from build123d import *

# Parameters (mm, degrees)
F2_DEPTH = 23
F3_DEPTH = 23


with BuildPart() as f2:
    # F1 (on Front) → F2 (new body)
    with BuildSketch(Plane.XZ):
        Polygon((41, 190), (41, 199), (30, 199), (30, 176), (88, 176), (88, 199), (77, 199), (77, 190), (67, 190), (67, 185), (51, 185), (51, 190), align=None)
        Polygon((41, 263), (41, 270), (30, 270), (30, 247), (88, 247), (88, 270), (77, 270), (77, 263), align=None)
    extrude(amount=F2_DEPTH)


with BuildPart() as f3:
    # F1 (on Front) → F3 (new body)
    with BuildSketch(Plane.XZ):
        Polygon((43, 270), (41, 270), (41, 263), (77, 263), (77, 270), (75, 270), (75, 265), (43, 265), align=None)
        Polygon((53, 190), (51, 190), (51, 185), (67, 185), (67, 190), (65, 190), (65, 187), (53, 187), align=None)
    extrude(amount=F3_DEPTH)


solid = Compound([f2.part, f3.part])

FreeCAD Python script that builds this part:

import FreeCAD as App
import Part
import Sketcher


def add_polygon(sketch, points):
    """Adds a closed chain of lines whose ends are joined by coincident constraints."""
    first, n = sketch.GeometryCount, len(points)
    for a, b in zip(points, points[1:] + points[:1]):
        sketch.addGeometry(Part.LineSegment(App.Vector(*a, 0), App.Vector(*b, 0)), False)
    for i in range(n):
        sketch.addConstraint(Sketcher.Constraint("Coincident", first + i, 2, first + (i + 1) % n, 1))

doc = App.newDocument("Part")
body = doc.addObject("PartDesign::Body", "Body")
body.AllowCompound = True

sketch1 = doc.addObject("Sketcher::SketchObject", "Sketch")
body.addObject(sketch1)
sketch1.AttachmentSupport = (doc.XZ_Plane, [""])
sketch1.MapMode = "FlatFace"
add_polygon(sketch1, [(41, 190), (41, 199), (30, 199), (30, 176), (88, 176), (88, 199), (77, 199), (77, 190), (67, 190), (67, 185), (51, 185), (51, 190)])
add_polygon(sketch1, [(41, 263), (41, 270), (30, 270), (30, 247), (88, 247), (88, 270), (77, 270), (77, 263)])
sketch1.addConstraint(Sketcher.Constraint("Vertical", 0))
sketch1.addConstraint(Sketcher.Constraint("Horizontal", 1))
sketch1.addConstraint(Sketcher.Constraint("Vertical", 2))
sketch1.addConstraint(Sketcher.Constraint("Horizontal", 3))
sketch1.addConstraint(Sketcher.Constraint("Vertical", 4))
sketch1.addConstraint(Sketcher.Constraint("Horizontal", 5))
sketch1.addConstraint(Sketcher.Constraint("Vertical", 6))
sketch1.addConstraint(Sketcher.Constraint("Horizontal", 7))
sketch1.addConstraint(Sketcher.Constraint("Vertical", 8))
sketch1.addConstraint(Sketcher.Constraint("Horizontal", 9))
sketch1.addConstraint(Sketcher.Constraint("Vertical", 10))
sketch1.addConstraint(Sketcher.Constraint("Horizontal", 11))
sketch1.addConstraint(Sketcher.Constraint("Vertical", 12))
sketch1.addConstraint(Sketcher.Constraint("Horizontal", 13))
sketch1.addConstraint(Sketcher.Constraint("Vertical", 14))
sketch1.addConstraint(Sketcher.Constraint("Horizontal", 15))
sketch1.addConstraint(Sketcher.Constraint("Vertical", 16))
sketch1.addConstraint(Sketcher.Constraint("Horizontal", 17))
sketch1.addConstraint(Sketcher.Constraint("Vertical", 18))
sketch1.addConstraint(Sketcher.Constraint("Horizontal", 19))
sketch1.addConstraint(Sketcher.Constraint("Horizontal", 1, 2, 4, 2))
sketch1.addConstraint(Sketcher.Constraint("Horizontal", 7, 2, 10, 2))
sketch1.addConstraint(Sketcher.Constraint("Horizontal", 13, 2, 16, 2))
sketch1.addConstraint(Sketcher.Constraint("Vertical", 11, 2, 12, 2))
sketch1.addConstraint(Sketcher.Constraint("Vertical", 2, 2, 13, 2))
sketch1.addConstraint(Sketcher.Constraint("Vertical", 4, 2, 15, 2))
sketch1.addConstraint(Sketcher.Constraint("Vertical", 6, 2, 17, 2))
sketch1.addConstraint(Sketcher.Constraint("Equal", 1, 5))
sketch1.addConstraint(Sketcher.Constraint("Equal", 7, 11))
sketch1.addConstraint(Sketcher.Constraint("Equal", 4, 14))
sketch1.addConstraint(Sketcher.Constraint("DistanceX", 1, 2, 1, 1, 11.0))
sketch1.addConstraint(Sketcher.Constraint("DistanceX", 3, 1, 3, 2, 58.0))
sketch1.addConstraint(Sketcher.Constraint("DistanceX", 7, 2, 7, 1, 10.0))
sketch1.addConstraint(Sketcher.Constraint("DistanceY", 0, 1, 0, 2, 9.0))
sketch1.addConstraint(Sketcher.Constraint("DistanceY", 2, 2, 2, 1, 23.0))
sketch1.addConstraint(Sketcher.Constraint("DistanceY", 8, 2, 8, 1, 5.0))
sketch1.addConstraint(Sketcher.Constraint("DistanceY", 12, 1, 12, 2, 7.0))
sketch1.addConstraint(Sketcher.Constraint("DistanceX", -1, 1, 0, 2, 41.0))
sketch1.addConstraint(Sketcher.Constraint("DistanceY", -1, 1, 0, 2, 199.0))
sketch1.addConstraint(Sketcher.Constraint("DistanceY", -1, 1, 12, 2, 270.0))
pad1 = doc.addObject("PartDesign::Pad", "Pad")
body.addObject(pad1)
pad1.Profile = sketch1
pad1.Length = 23
body2 = doc.addObject("PartDesign::Body", "Body001")
body2.AllowCompound = True

sketch2 = doc.addObject("Sketcher::SketchObject", "Sketch001")
body2.addObject(sketch2)
sketch2.AttachmentSupport = (doc.getObject("XZ_Plane001"), [""])
sketch2.MapMode = "FlatFace"
add_polygon(sketch2, [(43, 270), (41, 270), (41, 263), (77, 263), (77, 270), (75, 270), (75, 265), (43, 265)])
add_polygon(sketch2, [(53, 190), (51, 190), (51, 185), (67, 185), (67, 190), (65, 190), (65, 187), (53, 187)])
sketch2.addConstraint(Sketcher.Constraint("Horizontal", 0))
sketch2.addConstraint(Sketcher.Constraint("Vertical", 1))
sketch2.addConstraint(Sketcher.Constraint("Horizontal", 2))
sketch2.addConstraint(Sketcher.Constraint("Vertical", 3))
sketch2.addConstraint(Sketcher.Constraint("Horizontal", 4))
sketch2.addConstraint(Sketcher.Constraint("Vertical", 5))
sketch2.addConstraint(Sketcher.Constraint("Horizontal", 6))
sketch2.addConstraint(Sketcher.Constraint("Vertical", 7))
sketch2.addConstraint(Sketcher.Constraint("Horizontal", 8))
sketch2.addConstraint(Sketcher.Constraint("Vertical", 9))
sketch2.addConstraint(Sketcher.Constraint("Horizontal", 10))
sketch2.addConstraint(Sketcher.Constraint("Vertical", 11))
sketch2.addConstraint(Sketcher.Constraint("Horizontal", 12))
sketch2.addConstraint(Sketcher.Constraint("Vertical", 13))
sketch2.addConstraint(Sketcher.Constraint("Horizontal", 14))
sketch2.addConstraint(Sketcher.Constraint("Vertical", 15))
sketch2.addConstraint(Sketcher.Constraint("Horizontal", 0, 2, 3, 2))
sketch2.addConstraint(Sketcher.Constraint("Horizontal", 8, 2, 11, 2))
sketch2.addConstraint(Sketcher.Constraint("Equal", 0, 4))
sketch2.addConstraint(Sketcher.Constraint("Equal", 4, 8))
sketch2.addConstraint(Sketcher.Constraint("Equal", 8, 12))
sketch2.addConstraint(Sketcher.Constraint("Equal", 7, 9))
sketch2.addConstraint(Sketcher.Constraint("DistanceX", 0, 2, 0, 1, 2.0))
sketch2.addConstraint(Sketcher.Constraint("DistanceX", 2, 1, 2, 2, 36.0))
sketch2.addConstraint(Sketcher.Constraint("DistanceX", 10, 1, 10, 2, 16.0))
sketch2.addConstraint(Sketcher.Constraint("DistanceY", 1, 2, 1, 1, 7.0))
sketch2.addConstraint(Sketcher.Constraint("DistanceY", 5, 2, 5, 1, 5.0))
sketch2.addConstraint(Sketcher.Constraint("DistanceY", 13, 2, 13, 1, 3.0))
sketch2.addConstraint(Sketcher.Constraint("DistanceX", -1, 1, 0, 2, 41.0))
sketch2.addConstraint(Sketcher.Constraint("DistanceY", -1, 1, 0, 2, 270.0))
sketch2.addConstraint(Sketcher.Constraint("DistanceX", -1, 1, 8, 2, 51.0))
sketch2.addConstraint(Sketcher.Constraint("DistanceY", -1, 1, 8, 2, 190.0))
pad2 = doc.addObject("PartDesign::Pad", "Pad001")
body2.addObject(pad2)
pad2.Profile = sketch2
pad2.Length = 23

doc.recompute()
